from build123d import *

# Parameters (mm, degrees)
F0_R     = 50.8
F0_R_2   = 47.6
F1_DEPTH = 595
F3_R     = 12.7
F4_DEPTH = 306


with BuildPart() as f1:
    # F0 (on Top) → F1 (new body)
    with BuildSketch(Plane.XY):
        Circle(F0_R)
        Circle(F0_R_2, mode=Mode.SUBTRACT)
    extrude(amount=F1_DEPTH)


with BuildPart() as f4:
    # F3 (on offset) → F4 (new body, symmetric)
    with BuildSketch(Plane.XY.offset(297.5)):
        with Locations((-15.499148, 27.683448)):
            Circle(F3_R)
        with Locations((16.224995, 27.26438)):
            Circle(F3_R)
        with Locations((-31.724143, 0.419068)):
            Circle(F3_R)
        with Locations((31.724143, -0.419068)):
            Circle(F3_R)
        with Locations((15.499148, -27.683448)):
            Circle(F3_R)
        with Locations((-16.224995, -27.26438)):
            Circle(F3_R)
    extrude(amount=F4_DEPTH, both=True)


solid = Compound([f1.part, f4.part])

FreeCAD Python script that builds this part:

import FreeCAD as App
import Part
import Sketcher

V = App.Vector

doc = App.newDocument("Part")
body = doc.addObject("PartDesign::Body", "Body")

sketch1 = doc.addObject("Sketcher::SketchObject", "Sketch")
body.addObject(sketch1)
sketch1.AttachmentSupport = (doc.XY_Plane, [""])
sketch1.MapMode = "FlatFace"
sketch1.addGeometry(Part.Circle(V(0, 0, 0), V(0, 0, 1), 51), False)
sketch1.addGeometry(Part.Circle(V(0, 0, 0), V(0, 0, 1), 48), False)
sketch1.addConstraint(Sketcher.Constraint("Coincident", 0, 3, -1, 1))
sketch1.addConstraint(Sketcher.Constraint("Coincident", 1, 3, -1, 1))
sketch1.addConstraint(Sketcher.Constraint("Diameter", 0, 101.6))
sketch1.addConstraint(Sketcher.Constraint("Diameter", 1, 95.2))
pad1 = doc.addObject("PartDesign::Pad", "Pad")
body.addObject(pad1)
pad1.Profile = sketch1
pad1.Length = 595
body2 = doc.addObject("PartDesign::Body", "Body001")
body2.AllowCompound = True

sketch2 = doc.addObject("Sketcher::SketchObject", "Sketch001")
body2.addObject(sketch2)
sketch2.AttachmentSupport = (doc.getObject("XY_Plane001"), [""])
sketch2.MapMode = "FlatFace"
sketch2.AttachmentOffset = App.Placement(V(0, 0, 297.5), App.Rotation())
sketch2.addGeometry(Part.Circle(V(-15, 28, 0), V(0, 0, 1), 13), False)
sketch2.addGeometry(Part.Circle(V(16, 27, 0), V(0, 0, 1), 13), False)
sketch2.addGeometry(Part.Circle(V(-32, 0, 0), V(0, 0, 1), 13), False)
sketch2.addGeometry(Part.Circle(V(32, 0, 0), V(0, 0, 1), 13), False)
sketch2.addGeometry(Part.Circle(V(15, -28, 0), V(0, 0, 1), 13), False)
sketch2.addGeometry(Part.Circle(V(-16, -27, 0), V(0, 0, 1), 13), False)
sketch2.addConstraint(Sketcher.Constraint("Equal", 0, 1))
sketch2.addConstraint(Sketcher.Constraint("Equal", 1, 2))
sketch2.addConstraint(Sketcher.Constraint("Equal", 2, 3))
sketch2.addConstraint(Sketcher.Constraint("Equal", 3, 4))
sketch2.addConstraint(Sketcher.Constraint("Equal", 4, 5))
sketch2.addConstraint(Sketcher.Constraint("Symmetric", 2, 3, 3, 3, -1, 1))
sketch2.addConstraint(Sketcher.Constraint("Symmetric", 0, 3, 4, 3, -1, 1))
sketch2.addConstraint(Sketcher.Constraint("Symmetric", 1, 3, 5, 3, -1, 1))
sketch2.addConstraint(Sketcher.Constraint("Diameter", 0, 25.4))
sketch2.addConstraint(Sketcher.Constraint("DistanceY", -1, 1, 1, 3, 27.26438))
sketch2.addConstraint(Sketcher.Constraint("DistanceY", 2, 3, 0, 3, 27.26438))
sketch2.addConstraint(Sketcher.Constraint("DistanceX", 2, 3, 1, 3, 47.949138))
sketch2.addConstraint(Sketcher.Constraint("DistanceY", 2, 3, 1, 3, 26.845312))
sketch2.addConstraint(Sketcher.Constraint("DistanceX", 1, 3, 3, 3, 15.499148))
sketch2.addConstraint(Sketcher.Constraint("DistanceX", 0, 3, 3, 3, 47.223291))
pad2 = doc.addObject("PartDesign::Pad", "Pad001")
body2.addObject(pad2)
pad2.Profile = sketch2
pad2.Length = 612
pad2.Midplane = True

doc.recompute()
